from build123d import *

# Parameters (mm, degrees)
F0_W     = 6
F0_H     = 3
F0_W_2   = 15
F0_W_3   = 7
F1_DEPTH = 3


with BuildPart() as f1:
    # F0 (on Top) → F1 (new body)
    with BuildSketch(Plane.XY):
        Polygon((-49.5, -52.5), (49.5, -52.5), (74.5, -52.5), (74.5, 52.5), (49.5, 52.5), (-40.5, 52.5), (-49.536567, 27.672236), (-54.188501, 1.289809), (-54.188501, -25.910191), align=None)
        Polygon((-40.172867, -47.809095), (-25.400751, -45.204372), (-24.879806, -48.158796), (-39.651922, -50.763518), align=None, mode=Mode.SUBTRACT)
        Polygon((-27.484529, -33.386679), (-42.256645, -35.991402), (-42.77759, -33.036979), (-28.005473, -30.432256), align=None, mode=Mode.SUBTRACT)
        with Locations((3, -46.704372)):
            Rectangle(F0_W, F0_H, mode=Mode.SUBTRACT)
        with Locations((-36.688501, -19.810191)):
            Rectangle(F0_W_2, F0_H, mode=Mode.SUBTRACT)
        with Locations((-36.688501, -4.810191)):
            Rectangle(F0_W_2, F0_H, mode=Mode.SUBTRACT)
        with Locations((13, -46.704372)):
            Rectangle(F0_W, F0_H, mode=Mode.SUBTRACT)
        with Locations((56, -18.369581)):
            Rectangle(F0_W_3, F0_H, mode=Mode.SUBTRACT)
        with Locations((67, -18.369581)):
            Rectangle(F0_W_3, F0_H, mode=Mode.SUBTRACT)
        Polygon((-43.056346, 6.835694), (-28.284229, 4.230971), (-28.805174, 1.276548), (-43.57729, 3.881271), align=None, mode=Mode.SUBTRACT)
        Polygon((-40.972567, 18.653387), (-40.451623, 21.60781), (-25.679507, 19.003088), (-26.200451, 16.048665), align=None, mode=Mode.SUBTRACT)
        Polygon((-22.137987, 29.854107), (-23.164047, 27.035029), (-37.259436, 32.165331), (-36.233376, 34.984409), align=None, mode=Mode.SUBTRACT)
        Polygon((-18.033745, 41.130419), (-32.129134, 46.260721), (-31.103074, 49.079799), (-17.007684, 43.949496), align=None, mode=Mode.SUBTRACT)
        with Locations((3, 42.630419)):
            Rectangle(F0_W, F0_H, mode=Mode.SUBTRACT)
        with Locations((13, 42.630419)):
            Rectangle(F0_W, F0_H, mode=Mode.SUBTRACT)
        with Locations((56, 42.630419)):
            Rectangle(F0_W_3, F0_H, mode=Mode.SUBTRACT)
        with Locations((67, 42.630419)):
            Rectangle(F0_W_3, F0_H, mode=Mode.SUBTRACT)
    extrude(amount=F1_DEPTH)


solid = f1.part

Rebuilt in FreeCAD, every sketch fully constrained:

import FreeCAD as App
import Part
import Sketcher

V = App.Vector
Q = App.Units.Quantity


def add_polygon(sketch, points):
    """Adds a closed chain of lines whose ends are joined by coincident constraints."""
    first, n = sketch.GeometryCount, len(points)
    for a, b in zip(points, points[1:] + points[:1]):
        sketch.addGeometry(Part.LineSegment(App.Vector(*a, 0), App.Vector(*b, 0)), False)
    for i in range(n):
        sketch.addConstraint(Sketcher.Constraint("Coincident", first + i, 2, first + (i + 1) % n, 1))

doc = App.newDocument("Part")
params = doc.addObject("Spreadsheet::Sheet", "Params")
for row, (alias, value) in enumerate([
    ("sketch1_width", "124 mm"),
    ("sketch1_width2", "115 mm"),
    ("sketch1_width3", "6 mm"),
    ("sketch1_width4", "15 mm"),
    ("sketch1_width5", "7 mm"),
    ("pad1_length", "3 mm"),
], start=1):
    params.set(f"A{row}", alias)
    params.set(f"B{row}", "=" + value)
    params.setAlias(f"B{row}", alias)

body = doc.addObject("PartDesign::Body", "Body")

# Sketch on XY plane
sketch1 = body.newObject("Sketcher::SketchObject", "Sketch")
sketch1.AttachmentSupport = (doc.getObject("XY_Plane"), [""])
sketch1.MapMode = "FlatFace"
add_polygon(sketch1, [(-49.5, -52.5), (74.5, -52.5), (74.5, 52.5), (-40.5, 52.5), (-49.5, 27.7), (-54.2, 1.3), (-54.2, -25.9)])  # lines 0-6
add_polygon(sketch1, [(-39.7, -50.8), (-40.2, -47.8), (-25.4, -45.2), (-24.9, -48.2)])  # lines 7-10
add_polygon(sketch1, [(-28, -30.4), (-27.5, -33.4), (-42.3, -36), (-42.8, -33)])  # lines 11-14
add_polygon(sketch1, [(6, -48.2), (0, -48.2), (0, -45.2), (6, -45.2)])  # lines 15-18
add_polygon(sketch1, [(16, -48.2), (10, -48.2), (10, -45.2), (16, -45.2)])  # lines 19-22
add_polygon(sketch1, [(-29.2, -21.3), (-44.2, -21.3), (-44.2, -18.3), (-29.2, -18.3)])  # lines 23-26
add_polygon(sketch1, [(-29.2, -6.3), (-44.2, -6.3), (-44.2, -3.3), (-29.2, -3.3)])  # lines 27-30
add_polygon(sketch1, [(59.5, -19.9), (52.5, -19.9), (52.5, -16.9), (59.5, -16.9)])  # lines 31-34
add_polygon(sketch1, [(70.5, -19.9), (63.5, -19.9), (63.5, -16.9), (70.5, -16.9)])  # lines 35-38
add_polygon(sketch1, [(-43.6, 3.9), (-43.1, 6.8), (-28.3, 4.2), (-28.8, 1.3)])  # lines 39-42
add_polygon(sketch1, [(-26.2, 16), (-41, 18.7), (-40.5, 21.6), (-25.7, 19)])  # lines 43-46
add_polygon(sketch1, [(-36.2, 35), (-22.1, 29.9), (-23.2, 27), (-37.3, 32.2)])  # lines 47-50
add_polygon(sketch1, [(-17, 43.9), (-18, 41.1), (-32.1, 46.3), (-31.1, 49.1)])  # lines 51-54
add_polygon(sketch1, [(6, 41.1), (0, 41.1), (0, 44.1), (6, 44.1)])  # lines 55-58
add_polygon(sketch1, [(16, 41.1), (10, 41.1), (10, 44.1), (16, 44.1)])  # lines 59-62
add_polygon(sketch1, [(59.5, 41.1), (52.5, 41.1), (52.5, 44.1), (59.5, 44.1)])  # lines 63-66
add_polygon(sketch1, [(70.5, 41.1), (63.5, 41.1), (63.5, 44.1), (70.5, 44.1)])  # lines 67-70
sketch1.addConstraint([
    Sketcher.Constraint("Horizontal", 0),
    Sketcher.Constraint("Vertical", 1),
    Sketcher.Constraint("Horizontal", 2),
    Sketcher.Constraint("Vertical", 5),
    Sketcher.Constraint("Horizontal", 15),
    Sketcher.Constraint("Vertical", 16),
    Sketcher.Constraint("Horizontal", 17),
    Sketcher.Constraint("Vertical", 18),
    Sketcher.Constraint("Horizontal", 19),
    Sketcher.Constraint("Vertical", 20),
    Sketcher.Constraint("Horizontal", 21),
    Sketcher.Constraint("Vertical", 22),
    Sketcher.Constraint("Horizontal", 23),
    Sketcher.Constraint("Vertical", 24),
    Sketcher.Constraint("Horizontal", 25),
    Sketcher.Constraint("Vertical", 26),
    Sketcher.Constraint("Horizontal", 27),
    Sketcher.Constraint("Vertical", 28),
    Sketcher.Constraint("Horizontal", 29),
    Sketcher.Constraint("Vertical", 30),
    Sketcher.Constraint("Horizontal", 31),
    Sketcher.Constraint("Vertical", 32),
    Sketcher.Constraint("Horizontal", 33),
    Sketcher.Constraint("Vertical", 34),
    Sketcher.Constraint("Horizontal", 35),
    Sketcher.Constraint("Vertical", 36),
    Sketcher.Constraint("Horizontal", 37),
    Sketcher.Constraint("Vertical", 38),
    Sketcher.Constraint("Horizontal", 55),
    Sketcher.Constraint("Vertical", 56),
    Sketcher.Constraint("Horizontal", 57),
    Sketcher.Constraint("Vertical", 58),
    Sketcher.Constraint("Horizontal", 59),
    Sketcher.Constraint("Vertical", 60),
    Sketcher.Constraint("Horizontal", 61),
    Sketcher.Constraint("Vertical", 62),
    Sketcher.Constraint("Horizontal", 63),
    Sketcher.Constraint("Vertical", 64),
    Sketcher.Constraint("Horizontal", 65),
    Sketcher.Constraint("Vertical", 66),
    Sketcher.Constraint("Horizontal", 67),
    Sketcher.Constraint("Vertical", 68),
    Sketcher.Constraint("Horizontal", 69),
    Sketcher.Constraint("Vertical", 70),
    Sketcher.Constraint("PointOnObject", 15, 2, -2),
    Sketcher.Constraint("PointOnObject", 55, 2, -2),
    Sketcher.Constraint("Parallel", 6, 7),
    Sketcher.Constraint("Perpendicular", 7, 8),
    Sketcher.Constraint("Perpendicular", 8, 9),
    Sketcher.Constraint("Perpendicular", 9, 10),
    Sketcher.Constraint("Perpendicular", 10, 11),
    Sketcher.Constraint("Perpendicular", 11, 12),
    Sketcher.Constraint("Perpendicular", 12, 13),
    Sketcher.Constraint("Perpendicular", 13, 14),
    Sketcher.Constraint("Parallel", 4, 39),
    Sketcher.Constraint("Perpendicular", 39, 40),
    Sketcher.Constraint("Perpendicular", 40, 41),
    Sketcher.Constraint("Perpendicular", 41, 42),
    Sketcher.Constraint("Parallel", 42, 43),
    Sketcher.Constraint("Perpendicular", 43, 44),
    Sketcher.Constraint("Perpendicular", 44, 45),
    Sketcher.Constraint("Perpendicular", 45, 46),
    Sketcher.Constraint("Perpendicular", 3, 47),
    Sketcher.Constraint("Perpendicular", 47, 48),
    Sketcher.Constraint("Perpendicular", 48, 49),
    Sketcher.Constraint("Perpendicular", 49, 50),
    Sketcher.Constraint("Parallel", 50, 51),
    Sketcher.Constraint("Perpendicular", 51, 52),
    Sketcher.Constraint("Perpendicular", 52, 53),
    Sketcher.Constraint("Perpendicular", 53, 54),
    Sketcher.Constraint("Horizontal", 8, 2, 16, 2),
    Sketcher.Constraint("Horizontal", 18, 2, 19, 2),
    Sketcher.Constraint("Horizontal", 17, 2, 20, 2),
    Sketcher.Constraint("Horizontal", 34, 2, 35, 2),
    Sketcher.Constraint("Horizontal", 33, 2, 36, 2),
    Sketcher.Constraint("Horizontal", 51, 2, 55, 2),
    Sketcher.Constraint("Horizontal", 58, 2, 59, 2),
    Sketcher.Constraint("Horizontal", 57, 2, 60, 2),
    Sketcher.Constraint("Horizontal", 62, 2, 63, 2),
    Sketcher.Constraint("Horizontal", 61, 2, 64, 2),
    Sketcher.Constraint("Horizontal", 66, 2, 67, 2),
    Sketcher.Constraint("Horizontal", 65, 2, 68, 2),
    Sketcher.Constraint("Vertical", 24, 2, 27, 2),
    Sketcher.Constraint("Vertical", 26, 2, 29, 2),
    Sketcher.Constraint("Vertical", 18, 2, 57, 2),
    Sketcher.Constraint("Vertical", 20, 2, 59, 2),
    Sketcher.Constraint("Vertical", 22, 2, 61, 2),
    Sketcher.Constraint("Vertical", 32, 2, 63, 2),
    Sketcher.Constraint("Vertical", 34, 2, 65, 2),
    Sketcher.Constraint("Vertical", 36, 2, 67, 2),
    Sketcher.Constraint("Vertical", 38, 2, 69, 2),
    Sketcher.Constraint("Equal", 17, 19),
    Sketcher.Constraint("Equal", 33, 35),
    Sketcher.Constraint("Equal", 22, 24),
    Sketcher.Constraint("Equal", 26, 28),
    Sketcher.Constraint("Equal", 30, 32),
    Sketcher.Constraint("Equal", 38, 56),
    Sketcher.Constraint("Equal", 9, 11),
    Sketcher.Constraint("Equal", 10, 12),
    Sketcher.Constraint("Equal", 13, 39),
    Sketcher.Constraint("Equal", 14, 40),
    Sketcher.Constraint("Equal", 42, 43),
    Sketcher.Constraint("Equal", 41, 44),
    Sketcher.Constraint("Equal", 45, 47),
    Sketcher.Constraint("Equal", 46, 48),
    Sketcher.Constraint("Equal", 50, 51),
    Sketcher.Constraint("Equal", 49, 52),
    Sketcher.Constraint("DistanceX", 0, 1, 0, 2, Q("124 mm")),
    Sketcher.Constraint("DistanceX", 2, 2, 2, 1, Q("115 mm")),
    Sketcher.Constraint("DistanceX", 15, 2, 15, 1, Q("6 mm")),
    Sketcher.Constraint("DistanceX", 23, 2, 23, 1, Q("15 mm")),
    Sketcher.Constraint("DistanceX", 31, 2, 31, 1, Q("7 mm")),
    Sketcher.Constraint("DistanceY", 1, 1, 1, 2, Q("105 mm")),
    Sketcher.Constraint("DistanceY", 16, 1, 16, 2, Q("3 mm")),
    Sketcher.Constraint("Angle", 3, Q("-110 deg")),
    Sketcher.Constraint("Angle", 4, Q("-100.000001 deg")),
    Sketcher.Constraint("Angle", 6, Q("-79.999999 deg")),
    Sketcher.Constraint("Distance", 6, Q("27 mm")),
    Sketcher.Constraint("Distance", 7, Q("3 mm")),
    Sketcher.Constraint("Distance", 8, Q("15 mm")),
    Sketcher.Constraint("DistanceY", 5, 2, 5, 1, Q("27.2 mm")),
    Sketcher.Constraint("DistanceX", -1, 1, 19, 2, Q("10 mm")),
    Sketcher.Constraint("DistanceX", -1, 1, 0, 2, Q("74.5 mm")),
    Sketcher.Constraint("DistanceY", 0, 2, -1, 1, Q("52.5 mm")),
    Sketcher.Constraint("DistanceX", -1, 1, 31, 2, Q("52.5 mm")),
    Sketcher.Constraint("DistanceX", -1, 1, 35, 2, Q("63.5 mm")),
    Sketcher.Constraint("DistanceX", 23, 2, -1, 1, Q("44.188501 mm")),
    Sketcher.Constraint("DistanceY", -1, 1, 53, 2, Q("49.079799 mm")),
    Sketcher.Constraint("DistanceX", 8, 2, -1, 1, Q("25.400751 mm")),
    Sketcher.Constraint("DistanceX", 11, 2, -1, 1, Q("27.484529 mm")),
    Sketcher.Constraint("DistanceY", 11, 2, -1, 1, Q("33.386679 mm")),
    Sketcher.Constraint("DistanceY", 23, 2, -1, 1, Q("21.310191 mm")),
    Sketcher.Constraint("DistanceY", 27, 2, -1, 1, Q("6.310191 mm")),
    Sketcher.Constraint("DistanceY", 31, 2, -1, 1, Q("19.869581 mm")),
    Sketcher.Constraint("DistanceX", 40, 2, -1, 1, Q("28.284229 mm")),
    Sketcher.Constraint("DistanceY", -1, 1, 40, 2, Q("4.230971 mm")),
    Sketcher.Constraint("DistanceY", -1, 1, 44, 2, Q("21.60781 mm")),
    Sketcher.Constraint("DistanceX", 46, 2, -1, 1, Q("26.200451 mm")),
    Sketcher.Constraint("DistanceY", -1, 1, 48, 2, Q("27.035029 mm")),
    Sketcher.Constraint("DistanceY", 7, 2, -1, 1, Q("47.809095 mm")),
    Sketcher.Constraint("DistanceX", 47, 2, -1, 1, Q("22.137987 mm")),
    Sketcher.Constraint("DistanceX", 51, 2, -1, 1, Q("18.033745 mm")),
])
sketch1.setExpression("Constraints[178]", "Params.sketch1_width")
sketch1.setExpression("Constraints[179]", "Params.sketch1_width2")
sketch1.setExpression("Constraints[180]", "Params.sketch1_width3")
sketch1.setExpression("Constraints[181]", "Params.sketch1_width4")
sketch1.setExpression("Constraints[182]", "Params.sketch1_width5")
pad1 = body.newObject("PartDesign::Pad", "Pad")
pad1.Profile = sketch1
pad1.setExpression("Length", "Params.pad1_length")

doc.recompute()
